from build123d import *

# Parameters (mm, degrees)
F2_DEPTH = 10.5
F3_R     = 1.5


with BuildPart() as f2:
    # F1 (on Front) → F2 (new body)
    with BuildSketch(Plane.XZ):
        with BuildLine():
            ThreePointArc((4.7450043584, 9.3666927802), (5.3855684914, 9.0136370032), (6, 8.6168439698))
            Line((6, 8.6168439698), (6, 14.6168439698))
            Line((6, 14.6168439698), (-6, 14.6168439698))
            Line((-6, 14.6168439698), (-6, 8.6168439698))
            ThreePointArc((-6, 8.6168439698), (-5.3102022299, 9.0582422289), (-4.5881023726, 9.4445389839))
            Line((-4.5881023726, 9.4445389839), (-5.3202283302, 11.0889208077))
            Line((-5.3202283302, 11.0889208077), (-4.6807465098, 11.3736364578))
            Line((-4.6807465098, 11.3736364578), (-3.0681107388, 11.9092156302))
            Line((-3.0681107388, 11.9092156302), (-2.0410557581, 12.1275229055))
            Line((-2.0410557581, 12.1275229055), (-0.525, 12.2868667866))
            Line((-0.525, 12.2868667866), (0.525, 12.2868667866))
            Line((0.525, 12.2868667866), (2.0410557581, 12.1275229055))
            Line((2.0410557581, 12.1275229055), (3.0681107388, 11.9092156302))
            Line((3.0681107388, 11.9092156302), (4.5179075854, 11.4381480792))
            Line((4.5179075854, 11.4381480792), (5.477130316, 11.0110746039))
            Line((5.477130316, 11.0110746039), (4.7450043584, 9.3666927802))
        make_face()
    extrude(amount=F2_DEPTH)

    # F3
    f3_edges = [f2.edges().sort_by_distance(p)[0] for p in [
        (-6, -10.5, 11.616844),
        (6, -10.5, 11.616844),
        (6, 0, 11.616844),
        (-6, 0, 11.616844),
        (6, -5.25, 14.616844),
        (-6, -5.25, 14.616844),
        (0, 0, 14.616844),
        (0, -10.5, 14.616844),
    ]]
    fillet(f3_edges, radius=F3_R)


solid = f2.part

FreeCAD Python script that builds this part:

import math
import FreeCAD as App
import Part
import Sketcher

V = App.Vector
Q = App.Units.Quantity


def edges_at(feature, points):
    """Names of the edges that pass closest to the given points."""
    edges = feature.Shape.Edges
    near = lambda p: min(range(len(edges)), key=lambda i: edges[i].distToShape(Part.Vertex(*p))[0])
    return sorted({f"Edge{near(p) + 1}" for p in points})

doc = App.newDocument("Part")
body = doc.addObject("PartDesign::Body", "Body")

# Sketch on XZ plane
sketch1 = doc.addObject("Sketcher::SketchObject", "Sketch")
body.addObject(sketch1)
sketch1.AttachmentSupport = (doc.XZ_Plane, [""])
sketch1.MapMode = "FlatFace"
sketch1.addGeometry(Part.ArcOfCircle(Part.Circle(V(0, 0, 0), V(0, 0, 1), 10.5), math.radians(55.150095), math.radians(63.134016)), False)
sketch1.addGeometry(Part.LineSegment(V(6, 8.616844, 0), V(6, 14.616844, 0)), False)
sketch1.addGeometry(Part.LineSegment(V(6, 14.616844, 0), V(-6, 14.616844, 0)), False)
sketch1.addGeometry(Part.LineSegment(V(-6, 14.616844, 0), V(-6, 8.616844, 0)), False)
sketch1.addGeometry(Part.ArcOfCircle(Part.Circle(V(0, 0, 0), V(0, 0, 1), 10.5), math.radians(115.910213), math.radians(124.849905)), False)
sketch1.addGeometry(Part.LineSegment(V(-4.588102, 9.444539, 0), V(-5.320228, 11.088921, 0)), False)
sketch1.addGeometry(Part.LineSegment(V(-5.320228, 11.088921, 0), V(-4.680747, 11.373636, 0)), False)
sketch1.addGeometry(Part.LineSegment(V(-4.680747, 11.373636, 0), V(-3.068111, 11.909216, 0)), False)
sketch1.addGeometry(Part.LineSegment(V(-3.068111, 11.909216, 0), V(-2.041056, 12.127523, 0)), False)
sketch1.addGeometry(Part.LineSegment(V(-2.041056, 12.127523, 0), V(-0.525, 12.286867, 0)), False)
sketch1.addGeometry(Part.LineSegment(V(-0.525, 12.286867, 0), V(0.525, 12.286867, 0)), False)
sketch1.addGeometry(Part.LineSegment(V(0.525, 12.286867, 0), V(2.041056, 12.127523, 0)), False)
sketch1.addGeometry(Part.LineSegment(V(2.041056, 12.127523, 0), V(3.068111, 11.909216, 0)), False)
sketch1.addGeometry(Part.LineSegment(V(3.068111, 11.909216, 0), V(4.517908, 11.438148, 0)), False)
sketch1.addGeometry(Part.LineSegment(V(4.517908, 11.438148, 0), V(5.47713, 11.011075, 0)), False)
sketch1.addGeometry(Part.LineSegment(V(5.47713, 11.011075, 0), V(4.745004, 9.366693, 0)), False)
sketch1.addConstraint(Sketcher.Constraint("Coincident", 0, 1, 1, 1))
sketch1.addConstraint(Sketcher.Constraint("Coincident", 1, 2, 2, 1))
sketch1.addConstraint(Sketcher.Constraint("Coincident", 2, 2, 3, 1))
sketch1.addConstraint(Sketcher.Constraint("Coincident", 3, 2, 4, 2))
sketch1.addConstraint(Sketcher.Constraint("Coincident", 4, 1, 5, 1))
sketch1.addConstraint(Sketcher.Constraint("Coincident", 5, 2, 6, 1))
sketch1.addConstraint(Sketcher.Constraint("Coincident", 6, 2, 7, 1))
sketch1.addConstraint(Sketcher.Constraint("Coincident", 7, 2, 8, 1))
sketch1.addConstraint(Sketcher.Constraint("Coincident", 8, 2, 9, 1))
sketch1.addConstraint(Sketcher.Constraint("Coincident", 9, 2, 10, 1))
sketch1.addConstraint(Sketcher.Constraint("Coincident", 10, 2, 11, 1))
sketch1.addConstraint(Sketcher.Constraint("Coincident", 11, 2, 12, 1))
sketch1.addConstraint(Sketcher.Constraint("Coincident", 12, 2, 13, 1))
sketch1.addConstraint(Sketcher.Constraint("Coincident", 13, 2, 14, 1))
sketch1.addConstraint(Sketcher.Constraint("Coincident", 14, 2, 15, 1))
sketch1.addConstraint(Sketcher.Constraint("Coincident", 15, 2, 0, 2))
sketch1.addConstraint(Sketcher.Constraint("Vertical", 1))
sketch1.addConstraint(Sketcher.Constraint("Horizontal", 2))
sketch1.addConstraint(Sketcher.Constraint("Vertical", 3))
sketch1.addConstraint(Sketcher.Constraint("Horizontal", 10))
sketch1.addConstraint(Sketcher.Constraint("Coincident", 0, 3, -1, 1))
sketch1.addConstraint(Sketcher.Constraint("Coincident", 4, 3, -1, 1))
sketch1.addConstraint(Sketcher.Constraint("Equal", 0, 4))
sketch1.addConstraint(Sketcher.Constraint("Symmetric", 8, 2, 11, 2, -2))
sketch1.addConstraint(Sketcher.Constraint("Symmetric", 7, 2, 12, 2, -2))
sketch1.addConstraint(Sketcher.Constraint("Perpendicular", 5, 6))
sketch1.addConstraint(Sketcher.Constraint("Perpendicular", 14, 15))
sketch1.addConstraint(Sketcher.Constraint("Horizontal", 0, 1, 3, 2))
sketch1.addConstraint(Sketcher.Constraint("Equal", 9, 11))
sketch1.addConstraint(Sketcher.Constraint("Equal", 11, 13))
sketch1.addConstraint(Sketcher.Constraint("Equal", 12, 14))
sketch1.addConstraint(Sketcher.Constraint("Equal", 5, 15))
sketch1.addConstraint(Sketcher.Constraint("Radius", 0, 10.5))
sketch1.addConstraint(Sketcher.Constraint("DistanceX", 2, 2, 2, 1, 12.0))
sketch1.addConstraint(Sketcher.Constraint("DistanceY", 1, 1, 1, 2, 6.0))
sketch1.addConstraint(Sketcher.Constraint("Angle", 5, Q("114 deg")))
sketch1.addConstraint(Sketcher.Constraint("Angle", 8, Q("12 deg")))
sketch1.addConstraint(Sketcher.Constraint("Angle", 9, Q("6 deg")))
sketch1.addConstraint(Sketcher.Constraint("Angle", 13, Q("-18 deg")))
sketch1.addConstraint(Sketcher.Constraint("Angle", 14, Q("-24 deg")))
sketch1.addConstraint(Sketcher.Constraint("Distance", 5, 1.8))
sketch1.addConstraint(Sketcher.Constraint("Distance", 6, 0.7))
sketch1.addConstraint(Sketcher.Constraint("DistanceX", 10, 1, 10, 2, 1.05))
sketch1.addConstraint(Sketcher.Constraint("Distance", 8, 1.05))
sketch1.addConstraint(Sketcher.Constraint("DistanceY", -1, 1, 4, 1, 9.444539))
sketch1.addConstraint(Sketcher.Constraint("DistanceX", 7, 2, -1, 1, 3.068111))
pad1 = doc.addObject("PartDesign::Pad", "Pad")
body.addObject(pad1)
pad1.Profile = sketch1
pad1.Length = 10.5
doc.recompute()

fillet = doc.addObject("PartDesign::Fillet", "Fillet")
body.addObject(fillet)
fillet.Base = (pad1, edges_at(pad1, [
    (-6, -10.5, 11.617),
    (6, -10.5, 11.617),
    (6, 0, 11.617),
    (-6, 0, 11.617),
    (6, -5.25, 14.617),
    (-6, -5.25, 14.617),
    (0, 0, 14.617),
    (0, -10.5, 14.617),
]))
fillet.Radius = 1.5

doc.recompute()
